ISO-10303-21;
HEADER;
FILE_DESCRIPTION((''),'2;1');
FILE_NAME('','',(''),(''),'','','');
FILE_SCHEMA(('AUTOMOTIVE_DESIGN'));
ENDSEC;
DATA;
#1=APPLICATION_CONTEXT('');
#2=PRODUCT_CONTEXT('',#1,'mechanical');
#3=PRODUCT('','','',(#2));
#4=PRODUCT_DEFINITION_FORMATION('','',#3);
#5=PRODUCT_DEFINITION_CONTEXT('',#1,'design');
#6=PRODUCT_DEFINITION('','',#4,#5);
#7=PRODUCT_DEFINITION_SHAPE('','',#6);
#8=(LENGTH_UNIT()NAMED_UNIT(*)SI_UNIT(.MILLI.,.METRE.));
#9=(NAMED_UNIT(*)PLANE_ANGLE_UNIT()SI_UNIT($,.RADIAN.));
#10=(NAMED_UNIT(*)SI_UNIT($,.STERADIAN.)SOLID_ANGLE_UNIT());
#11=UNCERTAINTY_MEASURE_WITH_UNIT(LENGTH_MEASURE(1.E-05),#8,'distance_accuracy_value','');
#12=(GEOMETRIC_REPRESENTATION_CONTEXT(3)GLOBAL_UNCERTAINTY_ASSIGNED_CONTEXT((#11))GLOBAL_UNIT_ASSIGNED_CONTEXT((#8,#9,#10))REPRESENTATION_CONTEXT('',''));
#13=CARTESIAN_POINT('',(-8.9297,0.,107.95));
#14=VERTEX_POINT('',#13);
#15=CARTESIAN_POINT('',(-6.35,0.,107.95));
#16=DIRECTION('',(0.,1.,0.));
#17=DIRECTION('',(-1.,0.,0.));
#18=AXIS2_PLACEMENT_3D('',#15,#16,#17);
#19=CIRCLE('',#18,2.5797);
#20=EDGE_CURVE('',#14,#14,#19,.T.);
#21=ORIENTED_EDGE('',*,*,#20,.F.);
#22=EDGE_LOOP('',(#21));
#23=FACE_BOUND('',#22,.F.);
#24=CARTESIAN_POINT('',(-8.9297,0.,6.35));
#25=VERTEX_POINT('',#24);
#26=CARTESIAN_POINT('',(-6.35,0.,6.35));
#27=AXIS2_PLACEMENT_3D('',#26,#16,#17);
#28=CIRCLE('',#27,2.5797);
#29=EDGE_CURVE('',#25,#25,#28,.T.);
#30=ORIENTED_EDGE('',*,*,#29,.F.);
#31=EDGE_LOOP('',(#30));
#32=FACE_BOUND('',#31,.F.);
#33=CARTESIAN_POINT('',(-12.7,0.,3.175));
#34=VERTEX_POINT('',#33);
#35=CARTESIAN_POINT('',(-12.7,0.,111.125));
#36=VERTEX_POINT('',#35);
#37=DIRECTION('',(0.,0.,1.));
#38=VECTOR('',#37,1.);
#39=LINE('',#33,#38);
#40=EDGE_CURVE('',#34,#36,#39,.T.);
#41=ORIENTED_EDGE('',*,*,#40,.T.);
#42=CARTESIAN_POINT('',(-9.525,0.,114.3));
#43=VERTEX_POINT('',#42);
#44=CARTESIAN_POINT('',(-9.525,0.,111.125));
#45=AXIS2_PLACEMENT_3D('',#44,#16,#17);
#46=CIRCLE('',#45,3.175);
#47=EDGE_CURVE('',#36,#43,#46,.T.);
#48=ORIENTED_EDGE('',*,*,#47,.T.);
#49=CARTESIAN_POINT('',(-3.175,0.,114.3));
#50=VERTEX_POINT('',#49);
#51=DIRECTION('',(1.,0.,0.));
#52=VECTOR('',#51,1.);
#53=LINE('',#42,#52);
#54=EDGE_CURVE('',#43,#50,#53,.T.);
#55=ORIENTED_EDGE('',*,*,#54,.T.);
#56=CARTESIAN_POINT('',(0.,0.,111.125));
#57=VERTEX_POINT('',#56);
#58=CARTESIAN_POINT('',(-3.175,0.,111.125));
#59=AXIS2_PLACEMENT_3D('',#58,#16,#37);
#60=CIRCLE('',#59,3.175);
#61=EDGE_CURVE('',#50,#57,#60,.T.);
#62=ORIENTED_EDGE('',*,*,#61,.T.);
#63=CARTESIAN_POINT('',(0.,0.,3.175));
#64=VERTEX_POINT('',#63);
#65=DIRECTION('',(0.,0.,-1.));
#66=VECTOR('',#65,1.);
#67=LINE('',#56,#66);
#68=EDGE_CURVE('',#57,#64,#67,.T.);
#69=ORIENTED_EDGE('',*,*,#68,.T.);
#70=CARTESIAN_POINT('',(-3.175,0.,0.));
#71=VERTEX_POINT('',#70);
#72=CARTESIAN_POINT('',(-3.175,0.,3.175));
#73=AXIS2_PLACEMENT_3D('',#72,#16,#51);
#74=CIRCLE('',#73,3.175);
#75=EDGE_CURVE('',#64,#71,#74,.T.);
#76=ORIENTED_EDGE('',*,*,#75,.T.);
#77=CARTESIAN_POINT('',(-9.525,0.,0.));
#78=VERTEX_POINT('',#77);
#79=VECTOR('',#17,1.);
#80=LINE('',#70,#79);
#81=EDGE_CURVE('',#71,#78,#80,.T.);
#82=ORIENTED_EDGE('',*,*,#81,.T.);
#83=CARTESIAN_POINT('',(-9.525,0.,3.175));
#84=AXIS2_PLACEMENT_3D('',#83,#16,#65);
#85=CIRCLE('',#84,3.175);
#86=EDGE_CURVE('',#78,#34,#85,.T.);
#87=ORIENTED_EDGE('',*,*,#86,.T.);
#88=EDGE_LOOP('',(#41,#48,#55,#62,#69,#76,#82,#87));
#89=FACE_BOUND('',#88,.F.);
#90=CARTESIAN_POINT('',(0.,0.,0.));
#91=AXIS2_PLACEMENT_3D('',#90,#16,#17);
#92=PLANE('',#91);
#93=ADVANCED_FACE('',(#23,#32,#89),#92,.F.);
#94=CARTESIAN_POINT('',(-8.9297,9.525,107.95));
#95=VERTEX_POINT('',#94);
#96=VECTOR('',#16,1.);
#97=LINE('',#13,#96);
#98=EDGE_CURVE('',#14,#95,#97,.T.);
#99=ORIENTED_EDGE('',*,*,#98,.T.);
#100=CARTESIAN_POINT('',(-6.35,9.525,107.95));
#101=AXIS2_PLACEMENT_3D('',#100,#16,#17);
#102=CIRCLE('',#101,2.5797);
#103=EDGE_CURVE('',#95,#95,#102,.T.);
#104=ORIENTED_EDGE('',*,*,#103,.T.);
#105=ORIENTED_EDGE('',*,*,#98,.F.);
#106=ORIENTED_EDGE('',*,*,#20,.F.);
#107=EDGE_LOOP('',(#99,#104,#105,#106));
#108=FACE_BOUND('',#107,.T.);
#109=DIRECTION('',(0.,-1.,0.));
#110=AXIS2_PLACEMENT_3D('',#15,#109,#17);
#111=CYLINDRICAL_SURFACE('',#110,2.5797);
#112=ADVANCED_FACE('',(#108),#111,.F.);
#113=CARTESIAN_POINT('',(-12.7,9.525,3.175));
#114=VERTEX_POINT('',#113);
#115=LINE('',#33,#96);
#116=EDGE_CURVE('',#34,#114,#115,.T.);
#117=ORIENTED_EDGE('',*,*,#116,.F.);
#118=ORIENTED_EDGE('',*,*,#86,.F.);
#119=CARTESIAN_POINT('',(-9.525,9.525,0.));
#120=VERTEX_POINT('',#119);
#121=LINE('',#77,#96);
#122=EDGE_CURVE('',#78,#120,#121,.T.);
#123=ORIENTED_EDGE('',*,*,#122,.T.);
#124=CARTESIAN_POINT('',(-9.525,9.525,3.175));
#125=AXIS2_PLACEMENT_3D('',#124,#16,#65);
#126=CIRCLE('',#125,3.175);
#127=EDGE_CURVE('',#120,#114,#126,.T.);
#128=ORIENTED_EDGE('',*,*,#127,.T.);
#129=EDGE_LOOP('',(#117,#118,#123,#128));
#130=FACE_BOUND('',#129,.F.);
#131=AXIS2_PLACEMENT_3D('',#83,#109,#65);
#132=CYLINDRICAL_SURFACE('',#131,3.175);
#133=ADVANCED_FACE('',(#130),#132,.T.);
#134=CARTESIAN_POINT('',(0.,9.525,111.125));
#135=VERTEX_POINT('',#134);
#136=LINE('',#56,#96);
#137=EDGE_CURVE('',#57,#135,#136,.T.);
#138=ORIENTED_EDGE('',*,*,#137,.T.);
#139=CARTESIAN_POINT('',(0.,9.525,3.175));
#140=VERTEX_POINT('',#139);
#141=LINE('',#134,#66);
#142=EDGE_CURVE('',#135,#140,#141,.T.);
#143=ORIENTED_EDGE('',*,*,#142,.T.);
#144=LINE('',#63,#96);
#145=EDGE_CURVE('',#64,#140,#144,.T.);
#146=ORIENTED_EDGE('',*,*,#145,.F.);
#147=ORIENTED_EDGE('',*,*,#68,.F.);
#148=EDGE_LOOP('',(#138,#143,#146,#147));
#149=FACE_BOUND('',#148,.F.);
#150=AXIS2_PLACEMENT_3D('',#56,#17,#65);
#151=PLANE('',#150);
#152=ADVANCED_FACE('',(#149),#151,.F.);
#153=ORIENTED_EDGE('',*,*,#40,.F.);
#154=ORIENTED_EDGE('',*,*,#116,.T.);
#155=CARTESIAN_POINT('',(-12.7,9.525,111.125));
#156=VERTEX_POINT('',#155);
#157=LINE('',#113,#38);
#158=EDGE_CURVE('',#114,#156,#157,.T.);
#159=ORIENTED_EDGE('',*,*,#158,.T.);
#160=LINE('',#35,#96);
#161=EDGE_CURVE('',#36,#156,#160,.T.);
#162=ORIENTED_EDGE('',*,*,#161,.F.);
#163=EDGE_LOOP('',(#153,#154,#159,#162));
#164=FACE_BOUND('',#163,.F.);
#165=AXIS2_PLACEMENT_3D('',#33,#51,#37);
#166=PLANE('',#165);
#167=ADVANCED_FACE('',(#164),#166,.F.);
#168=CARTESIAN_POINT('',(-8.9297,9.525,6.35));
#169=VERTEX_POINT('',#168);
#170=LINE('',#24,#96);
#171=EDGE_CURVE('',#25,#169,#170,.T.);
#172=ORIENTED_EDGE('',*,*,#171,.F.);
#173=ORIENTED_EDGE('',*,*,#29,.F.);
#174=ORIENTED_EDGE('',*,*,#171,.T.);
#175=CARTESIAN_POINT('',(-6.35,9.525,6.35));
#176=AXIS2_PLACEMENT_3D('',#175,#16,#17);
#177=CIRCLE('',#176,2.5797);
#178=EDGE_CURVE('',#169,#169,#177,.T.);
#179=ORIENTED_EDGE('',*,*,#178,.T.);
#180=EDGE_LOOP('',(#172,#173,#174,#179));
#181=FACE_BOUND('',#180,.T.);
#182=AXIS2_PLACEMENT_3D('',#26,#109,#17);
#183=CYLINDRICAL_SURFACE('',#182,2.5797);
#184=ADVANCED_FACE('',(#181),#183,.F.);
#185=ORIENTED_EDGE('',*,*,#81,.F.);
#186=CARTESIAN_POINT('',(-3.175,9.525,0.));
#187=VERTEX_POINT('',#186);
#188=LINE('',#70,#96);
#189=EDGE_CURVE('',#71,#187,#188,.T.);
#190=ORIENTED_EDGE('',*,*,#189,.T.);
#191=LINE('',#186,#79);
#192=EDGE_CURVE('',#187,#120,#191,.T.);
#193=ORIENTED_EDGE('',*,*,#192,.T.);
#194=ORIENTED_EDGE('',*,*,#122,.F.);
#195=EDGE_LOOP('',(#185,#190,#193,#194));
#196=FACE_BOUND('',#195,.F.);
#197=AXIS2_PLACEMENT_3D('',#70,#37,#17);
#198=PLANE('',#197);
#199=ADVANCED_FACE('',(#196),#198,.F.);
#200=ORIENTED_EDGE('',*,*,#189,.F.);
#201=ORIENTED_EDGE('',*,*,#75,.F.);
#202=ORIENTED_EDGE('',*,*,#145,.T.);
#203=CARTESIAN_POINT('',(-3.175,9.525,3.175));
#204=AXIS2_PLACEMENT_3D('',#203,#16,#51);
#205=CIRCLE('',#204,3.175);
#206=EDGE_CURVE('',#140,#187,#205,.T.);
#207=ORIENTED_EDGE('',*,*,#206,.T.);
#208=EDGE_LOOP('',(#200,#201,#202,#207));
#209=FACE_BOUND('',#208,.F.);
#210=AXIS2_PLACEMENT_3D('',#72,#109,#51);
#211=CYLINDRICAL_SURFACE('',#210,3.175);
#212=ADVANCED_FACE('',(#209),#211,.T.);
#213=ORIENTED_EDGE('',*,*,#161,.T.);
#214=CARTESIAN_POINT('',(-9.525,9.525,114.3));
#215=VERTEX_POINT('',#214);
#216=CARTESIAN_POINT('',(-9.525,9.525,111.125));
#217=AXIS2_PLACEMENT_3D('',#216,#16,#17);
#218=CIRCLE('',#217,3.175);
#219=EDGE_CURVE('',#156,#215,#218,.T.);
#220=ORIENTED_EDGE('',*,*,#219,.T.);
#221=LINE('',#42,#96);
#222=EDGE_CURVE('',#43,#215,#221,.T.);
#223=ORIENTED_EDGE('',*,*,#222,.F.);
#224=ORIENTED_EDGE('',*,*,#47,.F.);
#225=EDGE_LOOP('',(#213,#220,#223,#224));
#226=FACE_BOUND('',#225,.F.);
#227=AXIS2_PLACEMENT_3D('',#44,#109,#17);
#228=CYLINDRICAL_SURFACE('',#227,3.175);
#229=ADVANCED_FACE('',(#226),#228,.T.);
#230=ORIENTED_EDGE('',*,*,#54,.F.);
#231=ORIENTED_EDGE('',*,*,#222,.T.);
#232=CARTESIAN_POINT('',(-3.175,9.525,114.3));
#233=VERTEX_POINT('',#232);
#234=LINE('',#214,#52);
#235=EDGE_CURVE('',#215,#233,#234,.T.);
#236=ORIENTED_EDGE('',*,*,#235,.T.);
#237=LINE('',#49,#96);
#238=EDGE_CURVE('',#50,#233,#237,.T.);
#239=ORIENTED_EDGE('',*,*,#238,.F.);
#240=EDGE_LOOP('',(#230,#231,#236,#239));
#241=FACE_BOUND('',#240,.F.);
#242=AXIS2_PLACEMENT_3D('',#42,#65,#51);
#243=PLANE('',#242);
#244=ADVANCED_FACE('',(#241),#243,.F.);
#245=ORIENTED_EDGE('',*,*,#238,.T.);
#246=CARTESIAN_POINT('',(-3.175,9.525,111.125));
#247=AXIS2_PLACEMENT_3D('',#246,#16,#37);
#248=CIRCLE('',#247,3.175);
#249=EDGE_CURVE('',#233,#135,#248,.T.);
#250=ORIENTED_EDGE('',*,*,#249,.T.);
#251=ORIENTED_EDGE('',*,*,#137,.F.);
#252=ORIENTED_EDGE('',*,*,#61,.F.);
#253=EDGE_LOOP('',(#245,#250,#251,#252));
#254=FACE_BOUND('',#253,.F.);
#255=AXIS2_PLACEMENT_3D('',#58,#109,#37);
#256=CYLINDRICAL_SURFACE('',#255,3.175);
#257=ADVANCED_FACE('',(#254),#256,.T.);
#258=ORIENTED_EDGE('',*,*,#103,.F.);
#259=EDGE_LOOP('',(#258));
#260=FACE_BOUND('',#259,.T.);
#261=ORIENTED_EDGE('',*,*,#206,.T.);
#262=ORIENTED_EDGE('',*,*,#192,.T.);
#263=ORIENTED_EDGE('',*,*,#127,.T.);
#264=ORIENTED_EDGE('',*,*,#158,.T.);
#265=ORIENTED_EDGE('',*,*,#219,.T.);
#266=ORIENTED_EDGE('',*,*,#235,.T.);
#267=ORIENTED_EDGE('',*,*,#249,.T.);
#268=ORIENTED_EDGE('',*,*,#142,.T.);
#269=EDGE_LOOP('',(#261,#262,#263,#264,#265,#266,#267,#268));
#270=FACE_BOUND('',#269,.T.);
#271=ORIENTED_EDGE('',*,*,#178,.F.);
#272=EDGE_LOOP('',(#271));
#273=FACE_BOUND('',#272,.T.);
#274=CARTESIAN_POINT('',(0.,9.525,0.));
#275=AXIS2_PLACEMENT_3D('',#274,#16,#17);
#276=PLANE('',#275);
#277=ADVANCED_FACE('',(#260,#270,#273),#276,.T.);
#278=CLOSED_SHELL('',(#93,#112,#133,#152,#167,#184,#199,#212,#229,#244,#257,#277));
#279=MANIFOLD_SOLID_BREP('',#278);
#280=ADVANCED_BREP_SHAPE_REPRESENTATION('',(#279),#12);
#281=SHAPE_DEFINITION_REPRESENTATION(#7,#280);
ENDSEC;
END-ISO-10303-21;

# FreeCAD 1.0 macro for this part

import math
import FreeCAD as App
import Part
import Sketcher
from FreeCAD import Vector
Q = App.Units.Quantity

doc = App.newDocument("Part")
body = doc.addObject("PartDesign::Body", "Body")

# Sketch on XZ plane
sketch1 = doc.addObject("Sketcher::SketchObject", "Sketch")
body.addObject(sketch1)
sketch1.AttachmentSupport = (doc.XZ_Plane, [""])
sketch1.MapMode = "FlatFace"
sketch1.addGeometry([
    Part.ArcOfCircle(Part.Circle(Vector(-3.175, 3.175, 0), Vector(0, 0, 1), 3.175), math.radians(-90), math.radians(0)),  # 0
    Part.LineSegment(Vector(-3.175, 0, 0), Vector(-9.525, 0, 0)),  # 1
    Part.ArcOfCircle(Part.Circle(Vector(-9.525, 3.175, 0), Vector(0, 0, 1), 3.175), math.radians(180), math.radians(270)),  # 2
    Part.LineSegment(Vector(-12.7, 3.175, 0), Vector(-12.7, 111.125, 0)),  # 3
    Part.ArcOfCircle(Part.Circle(Vector(-9.525, 111.125, 0), Vector(0, 0, 1), 3.175), math.radians(90), math.radians(180)),  # 4
    Part.LineSegment(Vector(-9.525, 114.3, 0), Vector(-3.175, 114.3, 0)),  # 5
    Part.ArcOfCircle(Part.Circle(Vector(-3.175, 111.125, 0), Vector(0, 0, 1), 3.175), math.radians(0), math.radians(90)),  # 6
    Part.LineSegment(Vector(0, 111.125, 0), Vector(0, 3.175, 0)),  # 7
    Part.Circle(Vector(-6.35, 6.35, 0), Vector(0, 0, 1), 2.5797),  # 8
    Part.Circle(Vector(-6.35, 107.95, 0), Vector(0, 0, 1), 2.5797),  # 9
], False)
sketch1.addConstraint([
    Sketcher.Constraint("Tangent", 0, 1, 1, 1),
    Sketcher.Constraint("Tangent", 1, 2, 2, 2),
    Sketcher.Constraint("Tangent", 2, 1, 3, 1),
    Sketcher.Constraint("Tangent", 3, 2, 4, 2),
    Sketcher.Constraint("Tangent", 4, 1, 5, 1),
    Sketcher.Constraint("Tangent", 5, 2, 6, 2),
    Sketcher.Constraint("Tangent", 6, 1, 7, 1),
    Sketcher.Constraint("Tangent", 7, 2, 0, 2),
    Sketcher.Constraint("Horizontal", 1),
    Sketcher.Constraint("Vertical", 3),
    Sketcher.Constraint("Horizontal", 5),
    Sketcher.Constraint("Vertical", 7),
    Sketcher.Constraint("Equal", 0, 2),
    Sketcher.Constraint("Equal", 2, 4),
    Sketcher.Constraint("Equal", 4, 6),
    Sketcher.Constraint("Equal", 8, 9),
    Sketcher.Constraint("PointOnObject", 0, 1, -1),
    Sketcher.Constraint("PointOnObject", 6, 1, -2),
    Sketcher.Constraint("Vertical", 8, 3, 9, 3),
    Sketcher.Constraint("Diameter", 8, Q("0.203126 in")),
    Sketcher.Constraint("Radius", 0, Q("0.125 in")),
    Sketcher.Constraint("DistanceX", 1, 2, 1, 1, Q("0.25 in")),
    Sketcher.Constraint("DistanceY", -1, 1, 4, 1, Q("4.5 in")),
    Sketcher.Constraint("DistanceX", 8, 3, -1, 1, Q("0.25 in")),
    Sketcher.Constraint("DistanceY", -1, 1, 8, 3, Q("0.25 in")),
    Sketcher.Constraint("DistanceY", 9, 3, 4, 1, Q("0.25 in")),
])
pad1 = doc.addObject("PartDesign::Pad", "Pad")
body.addObject(pad1)
pad1.Profile = sketch1
pad1.Length = Q("0.375 in")
pad1.Reversed = True

doc.recompute()
